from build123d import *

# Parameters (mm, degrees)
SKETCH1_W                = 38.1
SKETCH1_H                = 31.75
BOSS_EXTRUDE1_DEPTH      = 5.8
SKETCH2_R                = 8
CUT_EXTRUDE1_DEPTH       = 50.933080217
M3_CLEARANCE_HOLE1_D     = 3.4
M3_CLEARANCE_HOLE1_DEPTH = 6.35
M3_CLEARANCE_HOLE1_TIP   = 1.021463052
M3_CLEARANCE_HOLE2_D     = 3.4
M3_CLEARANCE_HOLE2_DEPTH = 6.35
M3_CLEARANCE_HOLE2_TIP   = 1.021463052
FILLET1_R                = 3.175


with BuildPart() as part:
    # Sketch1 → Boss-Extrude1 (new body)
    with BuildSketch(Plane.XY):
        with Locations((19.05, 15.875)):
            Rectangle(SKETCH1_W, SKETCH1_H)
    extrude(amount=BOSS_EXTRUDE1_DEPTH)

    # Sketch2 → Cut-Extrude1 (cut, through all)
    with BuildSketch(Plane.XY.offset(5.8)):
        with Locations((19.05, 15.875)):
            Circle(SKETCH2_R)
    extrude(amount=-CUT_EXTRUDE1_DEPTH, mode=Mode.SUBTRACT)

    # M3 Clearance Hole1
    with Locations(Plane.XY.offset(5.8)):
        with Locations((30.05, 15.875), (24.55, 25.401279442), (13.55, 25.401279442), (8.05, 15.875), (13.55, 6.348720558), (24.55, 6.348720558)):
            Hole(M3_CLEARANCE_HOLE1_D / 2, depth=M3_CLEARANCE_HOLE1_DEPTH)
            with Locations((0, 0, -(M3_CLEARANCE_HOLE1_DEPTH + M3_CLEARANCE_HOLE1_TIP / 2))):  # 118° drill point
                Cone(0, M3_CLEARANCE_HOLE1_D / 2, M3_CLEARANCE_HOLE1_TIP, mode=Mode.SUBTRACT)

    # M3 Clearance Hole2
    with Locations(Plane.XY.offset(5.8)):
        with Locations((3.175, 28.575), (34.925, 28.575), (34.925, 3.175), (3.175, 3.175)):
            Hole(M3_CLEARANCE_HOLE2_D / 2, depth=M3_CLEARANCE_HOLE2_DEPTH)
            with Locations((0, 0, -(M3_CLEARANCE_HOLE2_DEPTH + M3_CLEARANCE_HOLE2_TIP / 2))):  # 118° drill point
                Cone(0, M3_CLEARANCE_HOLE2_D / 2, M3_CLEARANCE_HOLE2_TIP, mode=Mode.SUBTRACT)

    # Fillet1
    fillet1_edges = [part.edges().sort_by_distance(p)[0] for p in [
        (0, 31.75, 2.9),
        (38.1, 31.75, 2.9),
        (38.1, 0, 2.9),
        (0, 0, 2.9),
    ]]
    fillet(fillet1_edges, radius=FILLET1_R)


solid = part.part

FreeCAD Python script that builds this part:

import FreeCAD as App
import Part
import Sketcher
Q = App.Units.Quantity


def edges_at(feature, points):
    """Names of the edges that pass closest to the given points."""
    edges = feature.Shape.Edges
    near = lambda p: min(range(len(edges)), key=lambda i: edges[i].distToShape(Part.Vertex(*p))[0])
    return sorted({f"Edge{near(p) + 1}" for p in points})


def add_polygon(sketch, points):
    """Adds a closed chain of lines whose ends are joined by coincident constraints."""
    first, n = sketch.GeometryCount, len(points)
    for a, b in zip(points, points[1:] + points[:1]):
        sketch.addGeometry(Part.LineSegment(App.Vector(*a, 0), App.Vector(*b, 0)), False)
    for i in range(n):
        sketch.addConstraint(Sketcher.Constraint("Coincident", first + i, 2, first + (i + 1) % n, 1))

doc = App.newDocument("Part")
params = doc.addObject("Spreadsheet::Sheet", "Params")
for row, (alias, value) in enumerate([
    ("sketch1_width", "1.5 in"),
    ("sketch1_height", "1.25 in"),
    ("pad1_length", "5.8 mm"),
    ("hole_diameter", "3.4 mm"),
    ("hole_depth", "0.25 in"),
    ("hole2_diameter", "3.4 mm"),
    ("hole2_depth", "0.25 in"),
    ("fillet_radius", "0.125 in"),
], start=1):
    params.set(f"A{row}", alias)
    params.set(f"B{row}", "=" + value)
    params.setAlias(f"B{row}", alias)

body = doc.addObject("PartDesign::Body", "Body")

# Sketch on XY plane
sketch1 = body.newObject("Sketcher::SketchObject", "Sketch")
sketch1.AttachmentSupport = (doc.getObject("XY_Plane"), [""])
sketch1.MapMode = "FlatFace"
add_polygon(sketch1, [(0, 32), (0, 0), (38, 0), (38, 32)])  # lines 0-3
sketch1.addConstraint([
    Sketcher.Constraint("Vertical", 0),
    Sketcher.Constraint("Horizontal", 1),
    Sketcher.Constraint("Vertical", 2),
    Sketcher.Constraint("Horizontal", 3),
    Sketcher.Constraint("Coincident", 0, 2, -1, 1),
    Sketcher.Constraint("DistanceX", 1, 1, 1, 2, Q("1.5 in")),
    Sketcher.Constraint("DistanceY", 0, 2, 0, 1, Q("1.25 in")),
])
sketch1.setExpression("Constraints[9]", "Params.sketch1_width")
sketch1.setExpression("Constraints[10]", "Params.sketch1_height")
pad1 = body.newObject("PartDesign::Pad", "Pad")
pad1.Profile = sketch1
pad1.setExpression("Length", "Params.pad1_length")

# Sketch on XY plane
sketch2 = body.newObject("Sketcher::SketchObject", "Sketch001")
sketch2.AttachmentSupport = (doc.getObject("XY_Plane"), [""])
sketch2.MapMode = "FlatFace"
sketch2.AttachmentOffset = App.Placement(App.Vector(0, 0, 5.8), App.Rotation())
sketch2.addGeometry(Part.Circle(App.Vector(19, 16, 0), App.Vector(0, 0, 1), 8), False)
sketch2.addConstraint([
    Sketcher.Constraint("Diameter", 0, Q("16 mm")),
    Sketcher.Constraint("DistanceX", -1, 1, 0, 3, Q("0.75 in")),
    Sketcher.Constraint("DistanceY", -1, 1, 0, 3, Q("0.625 in")),
])
pocket1 = body.newObject("PartDesign::Pocket", "Pocket")
pocket1.Profile = sketch2
pocket1.Type = "ThroughAll"

# Sketch on XY plane
sketch3 = body.newObject("Sketcher::SketchObject", "Sketch002")
sketch3.AttachmentSupport = (doc.getObject("XY_Plane"), [""])
sketch3.MapMode = "FlatFace"
sketch3.AttachmentOffset = App.Placement(App.Vector(0, 0, 5.8), App.Rotation())
sketch3.addGeometry([
    Part.Circle(App.Vector(30.1, 15.9, 0), App.Vector(0, 0, 1), 1.7),  # 0
    Part.Circle(App.Vector(24.6, 25.4, 0), App.Vector(0, 0, 1), 1.7),  # 1
    Part.Circle(App.Vector(13.6, 25.4, 0), App.Vector(0, 0, 1), 1.7),  # 2
    Part.Circle(App.Vector(8.1, 15.9, 0), App.Vector(0, 0, 1), 1.7),  # 3
    Part.Circle(App.Vector(13.6, 6.3, 0), App.Vector(0, 0, 1), 1.7),  # 4
    Part.Circle(App.Vector(24.6, 6.3, 0), App.Vector(0, 0, 1), 1.7),  # 5
], False)
sketch3.addConstraint([
    Sketcher.Constraint("Equal", 0, 1),
    Sketcher.Constraint("Equal", 1, 2),
    Sketcher.Constraint("Equal", 2, 3),
    Sketcher.Constraint("Equal", 3, 4),
    Sketcher.Constraint("Equal", 4, 5),
    Sketcher.Constraint("Horizontal", 1, 3, 2, 3),
    Sketcher.Constraint("Horizontal", 0, 3, 3, 3),
    Sketcher.Constraint("Horizontal", 4, 3, 5, 3),
    Sketcher.Constraint("Vertical", 2, 3, 4, 3),
    Sketcher.Constraint("Vertical", 1, 3, 5, 3),
    Sketcher.Constraint("Diameter", 0, Q("3.4 mm")),
    Sketcher.Constraint("DistanceY", -1, 1, 0, 3, Q("0.625 in")),
    Sketcher.Constraint("DistanceX", -1, 1, 0, 3, Q("30.05 mm")),
    Sketcher.Constraint("DistanceX", -1, 1, 1, 3, Q("24.55 mm")),
    Sketcher.Constraint("DistanceX", -1, 1, 2, 3, Q("13.55 mm")),
    Sketcher.Constraint("DistanceX", -1, 1, 3, 3, Q("8.05 mm")),
    Sketcher.Constraint("DistanceY", -1, 1, 1, 3, Q("25.401279 mm")),
    Sketcher.Constraint("DistanceY", -1, 1, 4, 3, Q("6.348721 mm")),
])
doc.recompute()
hole = body.newObject("PartDesign::Hole", "Hole")
hole.Profile = sketch3
hole.ThreadType = "None"
hole.setExpression("Diameter", "Params.hole_diameter")
hole.DepthType = "Dimension"
hole.setExpression("Depth", "Params.hole_depth")
hole.DrillPoint = "Angled"
hole.DrillPointAngle = 118

# Sketch on XY plane
sketch4 = body.newObject("Sketcher::SketchObject", "Sketch003")
sketch4.AttachmentSupport = (doc.getObject("XY_Plane"), [""])
sketch4.MapMode = "FlatFace"
sketch4.AttachmentOffset = App.Placement(App.Vector(0, 0, 5.8), App.Rotation())
sketch4.addGeometry([
    Part.Circle(App.Vector(3.2, 28.6, 0), App.Vector(0, 0, 1), 1.7),
    Part.Circle(App.Vector(34.9, 28.6, 0), App.Vector(0, 0, 1), 1.7),
    Part.Circle(App.Vector(34.9, 3.2, 0), App.Vector(0, 0, 1), 1.7),
    Part.Circle(App.Vector(3.2, 3.2, 0), App.Vector(0, 0, 1), 1.7),
], False)
sketch4.addConstraint([
    Sketcher.Constraint("Equal", 0, 1),
    Sketcher.Constraint("Equal", 1, 2),
    Sketcher.Constraint("Equal", 2, 3),
    Sketcher.Constraint("Horizontal", 0, 3, 1, 3),
    Sketcher.Constraint("Horizontal", 2, 3, 3, 3),
    Sketcher.Constraint("Vertical", 1, 3, 2, 3),
    Sketcher.Constraint("Vertical", 0, 3, 3, 3),
    Sketcher.Constraint("DistanceY", 2, 3, 1, 3, Q("1 in")),
    Sketcher.Constraint("Diameter", 0, Q("3.4 mm")),
    Sketcher.Constraint("DistanceX", 0, 3, 1, 3, Q("1.25 in")),
    Sketcher.Constraint("DistanceX", -1, 1, 0, 3, Q("0.125 in")),
    Sketcher.Constraint("DistanceY", -1, 1, 0, 3, Q("1.125 in")),
])
doc.recompute()
hole2 = body.newObject("PartDesign::Hole", "Hole001")
hole2.Profile = sketch4
hole2.ThreadType = "None"
hole2.setExpression("Diameter", "Params.hole2_diameter")
hole2.DepthType = "Dimension"
hole2.setExpression("Depth", "Params.hole2_depth")
hole2.DrillPoint = "Angled"
hole2.DrillPointAngle = 118
doc.recompute()

fillet = body.newObject("PartDesign::Fillet", "Fillet")
fillet.Base = (hole2, edges_at(hole2, [
    (0, 31.75, 2.9),
    (38.1, 31.75, 2.9),
    (38.1, 0, 2.9),
    (0, 0, 2.9),
]))
fillet.setExpression("Radius", "Params.fillet_radius")

doc.recompute()
